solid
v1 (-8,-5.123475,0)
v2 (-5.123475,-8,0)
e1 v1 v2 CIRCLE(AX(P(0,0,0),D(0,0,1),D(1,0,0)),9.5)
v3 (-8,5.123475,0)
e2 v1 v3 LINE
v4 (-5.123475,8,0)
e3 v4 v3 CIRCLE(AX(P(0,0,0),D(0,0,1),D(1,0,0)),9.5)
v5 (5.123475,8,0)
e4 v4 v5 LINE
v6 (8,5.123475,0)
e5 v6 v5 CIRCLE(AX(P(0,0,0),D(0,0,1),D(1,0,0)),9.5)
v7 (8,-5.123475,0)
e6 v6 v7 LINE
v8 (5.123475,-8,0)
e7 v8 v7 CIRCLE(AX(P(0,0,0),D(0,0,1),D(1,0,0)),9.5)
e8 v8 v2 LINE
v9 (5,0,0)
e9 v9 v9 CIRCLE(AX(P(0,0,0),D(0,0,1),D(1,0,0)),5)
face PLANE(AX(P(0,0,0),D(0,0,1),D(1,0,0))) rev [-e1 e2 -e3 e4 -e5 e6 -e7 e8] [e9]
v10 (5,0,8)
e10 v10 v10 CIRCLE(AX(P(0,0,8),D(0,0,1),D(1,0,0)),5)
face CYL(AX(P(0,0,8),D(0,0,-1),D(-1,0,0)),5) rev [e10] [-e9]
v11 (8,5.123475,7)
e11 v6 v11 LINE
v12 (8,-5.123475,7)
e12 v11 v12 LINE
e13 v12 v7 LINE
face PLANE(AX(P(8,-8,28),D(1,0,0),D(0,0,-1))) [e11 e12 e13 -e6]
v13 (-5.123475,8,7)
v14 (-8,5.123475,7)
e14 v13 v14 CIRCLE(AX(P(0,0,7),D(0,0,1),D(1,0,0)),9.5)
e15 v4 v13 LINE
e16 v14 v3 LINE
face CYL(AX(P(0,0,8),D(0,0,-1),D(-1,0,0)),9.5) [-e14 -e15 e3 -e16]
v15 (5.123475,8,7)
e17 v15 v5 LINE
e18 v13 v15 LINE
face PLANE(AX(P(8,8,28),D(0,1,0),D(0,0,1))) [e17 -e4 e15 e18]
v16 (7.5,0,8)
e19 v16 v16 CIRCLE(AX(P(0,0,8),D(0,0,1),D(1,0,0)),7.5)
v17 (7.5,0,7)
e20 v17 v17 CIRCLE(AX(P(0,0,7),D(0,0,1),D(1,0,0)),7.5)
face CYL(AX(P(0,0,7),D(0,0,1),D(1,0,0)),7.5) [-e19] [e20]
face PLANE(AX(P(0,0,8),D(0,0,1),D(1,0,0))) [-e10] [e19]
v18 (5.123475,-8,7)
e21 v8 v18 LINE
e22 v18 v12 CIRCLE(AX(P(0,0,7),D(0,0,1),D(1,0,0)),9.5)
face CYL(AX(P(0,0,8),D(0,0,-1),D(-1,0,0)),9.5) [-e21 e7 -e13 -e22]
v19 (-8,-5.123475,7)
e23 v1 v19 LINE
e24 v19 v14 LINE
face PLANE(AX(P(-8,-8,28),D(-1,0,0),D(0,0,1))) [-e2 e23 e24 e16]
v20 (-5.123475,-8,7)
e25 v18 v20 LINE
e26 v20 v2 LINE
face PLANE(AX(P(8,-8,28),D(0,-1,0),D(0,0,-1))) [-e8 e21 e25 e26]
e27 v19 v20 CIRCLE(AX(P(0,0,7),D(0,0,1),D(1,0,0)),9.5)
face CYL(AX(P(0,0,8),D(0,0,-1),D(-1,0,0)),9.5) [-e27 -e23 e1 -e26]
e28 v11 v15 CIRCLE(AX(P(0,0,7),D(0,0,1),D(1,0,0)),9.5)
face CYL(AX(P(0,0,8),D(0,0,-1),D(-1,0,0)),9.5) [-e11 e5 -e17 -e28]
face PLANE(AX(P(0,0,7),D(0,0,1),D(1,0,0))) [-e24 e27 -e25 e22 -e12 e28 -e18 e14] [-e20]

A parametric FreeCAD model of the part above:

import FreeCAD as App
import Part
import Sketcher

V = App.Vector
Q = App.Units.Quantity

doc = App.newDocument("Part")
params = doc.addObject("Spreadsheet::Sheet", "Params")
for row, (alias, value) in enumerate([
    ("sketch1_diameter", "19 mm"),
    ("sketch1_diameter2", "10 mm"),
    ("pad1_length", "8 mm"),
    ("sketch2_width", "16 mm"),
    ("pocket1_length", "28 mm"),
    ("sketch3_diameter", "15 mm"),
    ("sketch3_width", "22.8 mm"),
    ("pocket2_length", "1 mm"),
], start=1):
    params.set(f"A{row}", alias)
    params.set(f"B{row}", "=" + value)
    params.setAlias(f"B{row}", alias)

body = doc.addObject("PartDesign::Body", "Body")

sketch1 = doc.addObject("Sketcher::SketchObject", "Sketch")
body.addObject(sketch1)
sketch1.AttachmentSupport = (doc.XY_Plane, [""])
sketch1.MapMode = "FlatFace"
sketch1.addGeometry([
    Part.Circle(V(0, 0, 0), V(0, 0, 1), 10),
    Part.Circle(V(0, 0, 0), V(0, 0, 1), 5),
], False)
sketch1.addConstraint([
    Sketcher.Constraint("Coincident", 0, 3, -1, 1),
    Sketcher.Constraint("Coincident", 1, 3, -1, 1),
    Sketcher.Constraint("Diameter", 0, Q("19 mm")),
    Sketcher.Constraint("Diameter", 1, Q("10 mm")),
])
sketch1.setExpression("Constraints[2]", "Params.sketch1_diameter")
sketch1.setExpression("Constraints[3]", "Params.sketch1_diameter2")
pad1 = doc.addObject("PartDesign::Pad", "Pad")
body.addObject(pad1)
pad1.Profile = sketch1
pad1.setExpression("Length", "Params.pad1_length")

sketch2 = doc.addObject("Sketcher::SketchObject", "Sketch001")
body.addObject(sketch2)
sketch2.AttachmentSupport = (doc.XY_Plane, [""])
sketch2.MapMode = "FlatFace"
sketch2.addGeometry([
    Part.LineSegment(V(13, 13, 0), V(13, -13, 0)),
    Part.LineSegment(V(13, -13, 0), V(-13, -13, 0)),
    Part.LineSegment(V(-13, -13, 0), V(-13, 13, 0)),
    Part.LineSegment(V(-13, 13, 0), V(13, 13, 0)),
    Part.LineSegment(V(-8, -8, 0), V(8, -8, 0)),
    Part.LineSegment(V(8, -8, 0), V(8, 8, 0)),
    Part.LineSegment(V(8, 8, 0), V(-8, 8, 0)),
    Part.LineSegment(V(-8, 8, 0), V(-8, -8, 0)),
], False)
sketch2.addConstraint([
    Sketcher.Constraint("Coincident", 0, 2, 1, 1),
    Sketcher.Constraint("Coincident", 1, 2, 2, 1),
    Sketcher.Constraint("Coincident", 2, 2, 3, 1),
    Sketcher.Constraint("Coincident", 3, 2, 0, 1),
    Sketcher.Constraint("Coincident", 4, 2, 5, 1),
    Sketcher.Constraint("Coincident", 5, 2, 6, 1),
    Sketcher.Constraint("Coincident", 6, 2, 7, 1),
    Sketcher.Constraint("Coincident", 7, 2, 4, 1),
    Sketcher.Constraint("Vertical", 0),
    Sketcher.Constraint("Horizontal", 1),
    Sketcher.Constraint("Vertical", 2),
    Sketcher.Constraint("Horizontal", 3),
    Sketcher.Constraint("Horizontal", 4),
    Sketcher.Constraint("Vertical", 5),
    Sketcher.Constraint("Horizontal", 6),
    Sketcher.Constraint("Vertical", 7),
    Sketcher.Constraint("Symmetric", 0, 2, 2, 2, -1, 1),
    Sketcher.Constraint("Symmetric", 4, 2, 6, 2, -1, 1),
    Sketcher.Constraint("Equal", 3, 0),
    Sketcher.Constraint("Equal", 6, 5),
    Sketcher.Constraint("DistanceX", 4, 1, 4, 2, Q("16 mm")),
    Sketcher.Constraint("DistanceX", 1, 2, 1, 1, Q("26.608 mm")),
])
sketch2.setExpression("Constraints[20]", "Params.sketch2_width")
pocket1 = doc.addObject("PartDesign::Pocket", "Pocket")
body.addObject(pocket1)
pocket1.Profile = sketch2
pocket1.setExpression("Length", "Params.pocket1_length")
pocket1.Reversed = True

sketch3 = doc.addObject("Sketcher::SketchObject", "Sketch002")
body.addObject(sketch3)
sketch3.AttachmentSupport = (doc.XY_Plane, [""])
sketch3.MapMode = "FlatFace"
sketch3.AttachmentOffset = App.Placement(V(0, 0, 8), App.Rotation())
sketch3.addGeometry([
    Part.LineSegment(V(-11, 11, 0), V(-11, -11, 0)),
    Part.LineSegment(V(-11, -11, 0), V(11, -11, 0)),
    Part.LineSegment(V(11, -11, 0), V(11, 11, 0)),
    Part.LineSegment(V(11, 11, 0), V(-11, 11, 0)),
    Part.Circle(V(0, 0, 0), V(0, 0, 1), 8),
], False)
sketch3.addConstraint([
    Sketcher.Constraint("Coincident", 0, 2, 1, 1),
    Sketcher.Constraint("Coincident", 1, 2, 2, 1),
    Sketcher.Constraint("Coincident", 2, 2, 3, 1),
    Sketcher.Constraint("Coincident", 3, 2, 0, 1),
    Sketcher.Constraint("Vertical", 0),
    Sketcher.Constraint("Horizontal", 1),
    Sketcher.Constraint("Vertical", 2),
    Sketcher.Constraint("Horizontal", 3),
    Sketcher.Constraint("Coincident", 4, 3, -1, 1),
    Sketcher.Constraint("Symmetric", 0, 2, 2, 2, -1, 1),
    Sketcher.Constraint("Equal", 3, 0),
    Sketcher.Constraint("Diameter", 4, Q("15 mm")),
    Sketcher.Constraint("DistanceX", 1, 1, 1, 2, Q("22.8 mm")),
])
sketch3.setExpression("Constraints[11]", "Params.sketch3_diameter")
sketch3.setExpression("Constraints[12]", "Params.sketch3_width")
pocket2 = doc.addObject("PartDesign::Pocket", "Pocket001")
body.addObject(pocket2)
pocket2.Profile = sketch3
pocket2.setExpression("Length", "Params.pocket2_length")

doc.recompute()
